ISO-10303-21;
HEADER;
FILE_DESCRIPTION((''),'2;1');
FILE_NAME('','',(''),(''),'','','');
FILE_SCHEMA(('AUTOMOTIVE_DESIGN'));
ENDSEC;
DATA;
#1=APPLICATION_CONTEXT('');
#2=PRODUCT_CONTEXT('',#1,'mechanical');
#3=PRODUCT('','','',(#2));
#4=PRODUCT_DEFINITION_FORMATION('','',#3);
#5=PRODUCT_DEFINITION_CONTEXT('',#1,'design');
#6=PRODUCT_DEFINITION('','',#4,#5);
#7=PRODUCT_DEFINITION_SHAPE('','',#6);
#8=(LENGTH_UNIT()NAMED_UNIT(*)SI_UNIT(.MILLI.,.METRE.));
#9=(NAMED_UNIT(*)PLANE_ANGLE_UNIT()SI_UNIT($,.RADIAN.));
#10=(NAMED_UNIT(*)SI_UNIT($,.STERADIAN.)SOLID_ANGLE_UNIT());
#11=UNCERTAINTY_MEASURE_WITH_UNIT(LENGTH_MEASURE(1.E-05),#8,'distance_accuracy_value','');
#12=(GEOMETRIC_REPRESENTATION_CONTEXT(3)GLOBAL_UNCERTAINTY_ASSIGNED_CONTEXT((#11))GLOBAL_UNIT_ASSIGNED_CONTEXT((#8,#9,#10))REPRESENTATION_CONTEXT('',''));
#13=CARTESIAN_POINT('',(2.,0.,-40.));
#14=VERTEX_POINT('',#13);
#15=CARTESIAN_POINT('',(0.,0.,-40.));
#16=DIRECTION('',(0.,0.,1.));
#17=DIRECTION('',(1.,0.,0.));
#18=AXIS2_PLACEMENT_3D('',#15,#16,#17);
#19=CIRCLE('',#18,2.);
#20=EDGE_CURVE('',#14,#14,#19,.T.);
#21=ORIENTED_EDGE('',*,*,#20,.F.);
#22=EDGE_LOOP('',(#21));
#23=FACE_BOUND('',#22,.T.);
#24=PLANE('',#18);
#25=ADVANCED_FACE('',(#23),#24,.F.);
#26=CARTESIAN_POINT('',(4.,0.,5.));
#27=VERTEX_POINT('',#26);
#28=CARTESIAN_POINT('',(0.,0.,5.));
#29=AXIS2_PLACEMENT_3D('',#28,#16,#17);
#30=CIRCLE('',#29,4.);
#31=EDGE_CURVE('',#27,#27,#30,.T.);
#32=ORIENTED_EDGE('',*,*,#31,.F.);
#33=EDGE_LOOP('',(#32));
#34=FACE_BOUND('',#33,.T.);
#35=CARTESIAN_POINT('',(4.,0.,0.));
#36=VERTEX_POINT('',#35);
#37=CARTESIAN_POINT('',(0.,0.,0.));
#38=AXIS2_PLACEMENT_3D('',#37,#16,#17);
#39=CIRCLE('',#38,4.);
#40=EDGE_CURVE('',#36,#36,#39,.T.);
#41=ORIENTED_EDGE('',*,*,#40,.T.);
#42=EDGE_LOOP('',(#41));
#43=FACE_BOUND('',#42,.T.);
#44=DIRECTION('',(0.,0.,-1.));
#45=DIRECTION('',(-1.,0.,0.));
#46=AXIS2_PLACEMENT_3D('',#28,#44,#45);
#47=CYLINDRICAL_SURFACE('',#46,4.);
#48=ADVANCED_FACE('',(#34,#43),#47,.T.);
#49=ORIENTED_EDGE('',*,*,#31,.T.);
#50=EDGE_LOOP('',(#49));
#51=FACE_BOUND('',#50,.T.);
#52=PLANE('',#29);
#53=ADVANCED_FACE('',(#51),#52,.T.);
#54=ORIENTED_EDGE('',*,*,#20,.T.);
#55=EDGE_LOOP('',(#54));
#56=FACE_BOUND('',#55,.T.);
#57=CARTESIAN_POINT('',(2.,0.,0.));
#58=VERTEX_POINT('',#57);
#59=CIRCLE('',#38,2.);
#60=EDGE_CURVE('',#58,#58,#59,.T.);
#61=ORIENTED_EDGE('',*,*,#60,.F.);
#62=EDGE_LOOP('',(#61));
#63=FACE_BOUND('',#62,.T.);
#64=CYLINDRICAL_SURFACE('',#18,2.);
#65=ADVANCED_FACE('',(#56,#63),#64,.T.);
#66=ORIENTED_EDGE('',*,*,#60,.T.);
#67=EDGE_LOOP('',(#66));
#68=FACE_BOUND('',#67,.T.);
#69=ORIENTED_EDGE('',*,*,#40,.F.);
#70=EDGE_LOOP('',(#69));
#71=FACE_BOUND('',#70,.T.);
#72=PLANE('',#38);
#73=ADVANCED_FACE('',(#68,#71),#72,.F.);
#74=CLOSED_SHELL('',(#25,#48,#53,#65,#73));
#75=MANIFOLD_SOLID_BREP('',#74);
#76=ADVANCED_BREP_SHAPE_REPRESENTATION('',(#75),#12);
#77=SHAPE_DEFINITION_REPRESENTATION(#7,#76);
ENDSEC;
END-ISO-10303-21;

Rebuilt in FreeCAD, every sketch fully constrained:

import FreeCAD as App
import Part
import Sketcher
Q = App.Units.Quantity

doc = App.newDocument("Part")
body = doc.addObject("PartDesign::Body", "Body")

# Sketch on XY plane
sketch1 = body.newObject("Sketcher::SketchObject", "Sketch")
sketch1.AttachmentSupport = (doc.getObject("XY_Plane"), [""])
sketch1.MapMode = "FlatFace"
sketch1.addGeometry(Part.Circle(App.Vector(0, 0, 0), App.Vector(0, 0, 1), 4), False)
sketch1.addConstraint(Sketcher.Constraint("Coincident", 0, 3, -1, 1))
sketch1.addConstraint(Sketcher.Constraint("Diameter", 0, Q("8 mm")))
pad1 = body.newObject("PartDesign::Pad", "Pad")
pad1.Profile = sketch1
pad1.Length = 5

# Sketch on XY plane
sketch2 = body.newObject("Sketcher::SketchObject", "Sketch001")
sketch2.AttachmentSupport = (doc.getObject("XY_Plane"), [""])
sketch2.MapMode = "FlatFace"
sketch2.addGeometry(Part.Circle(App.Vector(0, 0, 0), App.Vector(0, 0, 1), 2), False)
sketch2.addConstraint(Sketcher.Constraint("Coincident", 0, 3, -1, 1))
sketch2.addConstraint(Sketcher.Constraint("Diameter", 0, Q("4 mm")))
pad2 = body.newObject("PartDesign::Pad", "Pad001")
pad2.Profile = sketch2
pad2.Length = 40
pad2.Reversed = True

doc.recompute()
